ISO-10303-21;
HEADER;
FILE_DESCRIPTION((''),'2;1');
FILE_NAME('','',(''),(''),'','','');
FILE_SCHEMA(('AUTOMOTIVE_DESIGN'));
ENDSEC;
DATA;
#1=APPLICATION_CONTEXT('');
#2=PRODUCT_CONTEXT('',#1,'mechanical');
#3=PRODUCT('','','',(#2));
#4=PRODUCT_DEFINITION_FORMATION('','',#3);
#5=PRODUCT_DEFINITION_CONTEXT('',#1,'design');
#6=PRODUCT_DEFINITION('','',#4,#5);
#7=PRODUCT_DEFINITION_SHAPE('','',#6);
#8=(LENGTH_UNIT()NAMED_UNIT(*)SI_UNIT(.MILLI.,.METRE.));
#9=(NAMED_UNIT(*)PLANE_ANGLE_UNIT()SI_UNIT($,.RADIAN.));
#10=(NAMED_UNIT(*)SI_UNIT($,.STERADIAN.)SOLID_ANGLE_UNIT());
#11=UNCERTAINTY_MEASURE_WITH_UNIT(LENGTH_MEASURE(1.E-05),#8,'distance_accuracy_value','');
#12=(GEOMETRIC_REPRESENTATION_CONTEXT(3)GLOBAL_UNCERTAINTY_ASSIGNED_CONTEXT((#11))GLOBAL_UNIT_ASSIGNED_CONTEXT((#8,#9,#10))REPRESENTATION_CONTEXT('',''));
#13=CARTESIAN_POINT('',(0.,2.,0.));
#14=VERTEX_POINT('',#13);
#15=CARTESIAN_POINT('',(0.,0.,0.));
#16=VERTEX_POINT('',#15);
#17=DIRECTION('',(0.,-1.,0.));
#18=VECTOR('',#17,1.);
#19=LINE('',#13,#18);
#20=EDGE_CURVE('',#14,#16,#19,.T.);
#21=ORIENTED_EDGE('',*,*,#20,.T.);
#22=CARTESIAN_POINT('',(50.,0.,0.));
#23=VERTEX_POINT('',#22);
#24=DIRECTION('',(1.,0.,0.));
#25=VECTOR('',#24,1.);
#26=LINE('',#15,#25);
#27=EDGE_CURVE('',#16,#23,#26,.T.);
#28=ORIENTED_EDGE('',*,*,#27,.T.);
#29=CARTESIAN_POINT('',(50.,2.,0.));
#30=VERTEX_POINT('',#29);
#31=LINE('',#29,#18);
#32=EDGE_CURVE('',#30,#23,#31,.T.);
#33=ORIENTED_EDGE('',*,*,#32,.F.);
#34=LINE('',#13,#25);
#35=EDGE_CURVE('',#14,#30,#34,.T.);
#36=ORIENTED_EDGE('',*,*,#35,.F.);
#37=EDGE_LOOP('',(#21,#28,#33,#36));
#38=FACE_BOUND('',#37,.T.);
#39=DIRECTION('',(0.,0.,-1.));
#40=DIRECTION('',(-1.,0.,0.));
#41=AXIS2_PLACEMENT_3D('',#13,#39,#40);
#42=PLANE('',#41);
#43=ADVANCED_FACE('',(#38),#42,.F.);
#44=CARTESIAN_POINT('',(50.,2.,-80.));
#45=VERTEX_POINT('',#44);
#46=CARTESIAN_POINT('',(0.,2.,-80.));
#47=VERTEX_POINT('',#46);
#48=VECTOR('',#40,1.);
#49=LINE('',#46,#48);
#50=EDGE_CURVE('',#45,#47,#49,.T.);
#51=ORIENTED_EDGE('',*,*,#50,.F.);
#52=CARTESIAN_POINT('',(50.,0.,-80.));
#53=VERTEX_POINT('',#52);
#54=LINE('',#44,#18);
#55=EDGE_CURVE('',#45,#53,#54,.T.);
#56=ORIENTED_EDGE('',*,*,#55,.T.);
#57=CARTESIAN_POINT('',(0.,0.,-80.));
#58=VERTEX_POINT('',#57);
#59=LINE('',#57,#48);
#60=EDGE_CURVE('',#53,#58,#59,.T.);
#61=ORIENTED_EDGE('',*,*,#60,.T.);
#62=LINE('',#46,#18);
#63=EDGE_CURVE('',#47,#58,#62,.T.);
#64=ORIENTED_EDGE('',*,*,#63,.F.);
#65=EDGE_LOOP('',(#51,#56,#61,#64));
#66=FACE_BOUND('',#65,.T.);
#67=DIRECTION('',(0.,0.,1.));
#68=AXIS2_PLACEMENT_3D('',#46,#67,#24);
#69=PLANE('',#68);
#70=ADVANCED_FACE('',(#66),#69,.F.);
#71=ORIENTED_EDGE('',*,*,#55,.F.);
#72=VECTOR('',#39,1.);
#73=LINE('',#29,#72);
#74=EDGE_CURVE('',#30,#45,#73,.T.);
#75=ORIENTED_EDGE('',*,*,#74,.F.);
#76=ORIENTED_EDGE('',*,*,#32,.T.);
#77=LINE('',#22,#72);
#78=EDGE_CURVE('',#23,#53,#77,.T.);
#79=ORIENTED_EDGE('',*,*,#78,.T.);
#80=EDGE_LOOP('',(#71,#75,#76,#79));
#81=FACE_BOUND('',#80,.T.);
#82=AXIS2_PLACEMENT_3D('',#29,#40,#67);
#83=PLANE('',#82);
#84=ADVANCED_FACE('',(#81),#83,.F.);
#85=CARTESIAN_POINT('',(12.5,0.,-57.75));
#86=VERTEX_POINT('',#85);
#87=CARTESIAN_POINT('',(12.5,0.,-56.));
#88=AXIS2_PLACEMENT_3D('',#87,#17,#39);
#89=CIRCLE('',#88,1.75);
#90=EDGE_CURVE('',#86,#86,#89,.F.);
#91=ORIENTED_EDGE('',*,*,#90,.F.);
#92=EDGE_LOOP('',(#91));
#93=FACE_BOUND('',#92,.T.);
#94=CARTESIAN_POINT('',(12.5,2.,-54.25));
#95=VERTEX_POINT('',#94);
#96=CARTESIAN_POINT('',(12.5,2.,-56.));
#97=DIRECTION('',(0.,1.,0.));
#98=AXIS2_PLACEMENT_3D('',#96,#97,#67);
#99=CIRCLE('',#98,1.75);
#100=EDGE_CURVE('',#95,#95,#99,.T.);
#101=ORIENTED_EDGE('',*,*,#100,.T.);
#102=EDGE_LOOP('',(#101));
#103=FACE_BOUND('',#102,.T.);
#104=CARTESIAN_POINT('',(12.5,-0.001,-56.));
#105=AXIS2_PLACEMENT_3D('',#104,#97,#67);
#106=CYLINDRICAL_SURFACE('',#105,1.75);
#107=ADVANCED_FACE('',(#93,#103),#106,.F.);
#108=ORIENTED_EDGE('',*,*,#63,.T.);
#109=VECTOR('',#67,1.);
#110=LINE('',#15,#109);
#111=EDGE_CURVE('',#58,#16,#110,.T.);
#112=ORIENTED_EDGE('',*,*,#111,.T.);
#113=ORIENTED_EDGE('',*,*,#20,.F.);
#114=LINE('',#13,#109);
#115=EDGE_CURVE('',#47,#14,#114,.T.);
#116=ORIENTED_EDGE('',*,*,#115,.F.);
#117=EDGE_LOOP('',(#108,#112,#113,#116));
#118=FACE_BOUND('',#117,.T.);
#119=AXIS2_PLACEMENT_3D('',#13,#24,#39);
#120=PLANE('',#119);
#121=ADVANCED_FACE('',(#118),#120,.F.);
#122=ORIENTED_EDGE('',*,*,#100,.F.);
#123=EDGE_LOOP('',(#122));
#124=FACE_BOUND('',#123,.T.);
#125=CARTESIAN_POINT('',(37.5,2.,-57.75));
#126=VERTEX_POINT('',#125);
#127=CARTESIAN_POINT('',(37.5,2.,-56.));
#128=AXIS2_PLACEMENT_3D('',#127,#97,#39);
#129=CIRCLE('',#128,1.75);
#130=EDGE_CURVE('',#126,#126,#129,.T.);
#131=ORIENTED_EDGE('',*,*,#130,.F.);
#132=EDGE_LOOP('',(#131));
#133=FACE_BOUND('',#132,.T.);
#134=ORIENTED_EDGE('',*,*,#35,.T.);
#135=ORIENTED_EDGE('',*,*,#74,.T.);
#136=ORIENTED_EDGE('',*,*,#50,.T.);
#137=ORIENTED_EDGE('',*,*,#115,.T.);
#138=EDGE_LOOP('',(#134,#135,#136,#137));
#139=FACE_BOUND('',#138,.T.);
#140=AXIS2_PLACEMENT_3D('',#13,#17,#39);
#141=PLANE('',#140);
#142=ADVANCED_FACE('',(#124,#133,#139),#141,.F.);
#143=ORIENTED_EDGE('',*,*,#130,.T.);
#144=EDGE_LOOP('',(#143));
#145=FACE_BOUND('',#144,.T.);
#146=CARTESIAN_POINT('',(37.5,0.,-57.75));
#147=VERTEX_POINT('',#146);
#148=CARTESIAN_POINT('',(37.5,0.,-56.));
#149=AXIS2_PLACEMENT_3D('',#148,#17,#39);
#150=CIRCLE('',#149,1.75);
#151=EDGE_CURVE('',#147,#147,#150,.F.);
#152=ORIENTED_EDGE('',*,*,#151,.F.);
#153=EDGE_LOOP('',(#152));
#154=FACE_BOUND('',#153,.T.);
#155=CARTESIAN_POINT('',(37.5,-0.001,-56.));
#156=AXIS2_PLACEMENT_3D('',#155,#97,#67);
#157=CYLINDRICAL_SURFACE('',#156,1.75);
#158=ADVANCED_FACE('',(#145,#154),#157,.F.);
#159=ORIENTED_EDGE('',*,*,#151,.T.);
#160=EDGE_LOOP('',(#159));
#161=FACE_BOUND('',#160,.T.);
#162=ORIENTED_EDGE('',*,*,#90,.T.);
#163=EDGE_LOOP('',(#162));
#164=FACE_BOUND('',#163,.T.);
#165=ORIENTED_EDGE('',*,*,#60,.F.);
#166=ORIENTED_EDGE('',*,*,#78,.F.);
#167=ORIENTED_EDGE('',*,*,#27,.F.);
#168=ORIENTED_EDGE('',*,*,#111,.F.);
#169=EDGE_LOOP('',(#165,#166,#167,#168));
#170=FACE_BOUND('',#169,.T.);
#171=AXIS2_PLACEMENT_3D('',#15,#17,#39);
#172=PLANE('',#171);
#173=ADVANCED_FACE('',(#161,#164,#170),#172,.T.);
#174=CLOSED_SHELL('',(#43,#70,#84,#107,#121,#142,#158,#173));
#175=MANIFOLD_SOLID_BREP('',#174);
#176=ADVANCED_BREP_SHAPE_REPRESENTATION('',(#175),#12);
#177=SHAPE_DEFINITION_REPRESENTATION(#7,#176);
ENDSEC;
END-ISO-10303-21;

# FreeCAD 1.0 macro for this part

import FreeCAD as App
import Part
import Sketcher
Q = App.Units.Quantity

doc = App.newDocument("Part")
body = doc.addObject("PartDesign::Body", "Body")

sketch1 = body.newObject("Sketcher::SketchObject", "Sketch")
sketch1.AttachmentSupport = (doc.getObject("XZ_Plane"), [""])
sketch1.MapMode = "FlatFace"
sketch1.addGeometry(Part.LineSegment(App.Vector(0, -80, 0), App.Vector(0, 0, 0)), False)
sketch1.addGeometry(Part.LineSegment(App.Vector(0, 0, 0), App.Vector(50, 0, 0)), False)
sketch1.addGeometry(Part.LineSegment(App.Vector(50, 0, 0), App.Vector(50, -80, 0)), False)
sketch1.addGeometry(Part.LineSegment(App.Vector(50, -80, 0), App.Vector(0, -80, 0)), False)
sketch1.addConstraint(Sketcher.Constraint("Coincident", 0, 2, 1, 1))
sketch1.addConstraint(Sketcher.Constraint("Coincident", 1, 2, 2, 1))
sketch1.addConstraint(Sketcher.Constraint("Coincident", 2, 2, 3, 1))
sketch1.addConstraint(Sketcher.Constraint("Coincident", 3, 2, 0, 1))
sketch1.addConstraint(Sketcher.Constraint("Vertical", 0))
sketch1.addConstraint(Sketcher.Constraint("Horizontal", 1))
sketch1.addConstraint(Sketcher.Constraint("Vertical", 2))
sketch1.addConstraint(Sketcher.Constraint("Horizontal", 3))
sketch1.addConstraint(Sketcher.Constraint("Coincident", 0, 2, -1, 1))
sketch1.addConstraint(Sketcher.Constraint("DistanceX", 1, 1, 1, 2, Q("50 mm")))
sketch1.addConstraint(Sketcher.Constraint("DistanceY", 0, 1, 0, 2, Q("80 mm")))
pad1 = body.newObject("PartDesign::Pad", "Pad")
pad1.Profile = sketch1
pad1.Length = 2
pad1.Reversed = True

sketch2 = body.newObject("Sketcher::SketchObject", "Sketch001")
sketch2.AttachmentSupport = (doc.getObject("XZ_Plane"), [""])
sketch2.MapMode = "FlatFace"
sketch2.AttachmentOffset = App.Placement(App.Vector(0, 0, -2), App.Rotation())
sketch2.addGeometry(Part.Circle(App.Vector(12.5, -56, 0), App.Vector(0, 0, 1), 1.8), False)
sketch2.addConstraint(Sketcher.Constraint("Diameter", 0, Q("3.5 mm")))
sketch2.addConstraint(Sketcher.Constraint("DistanceY", 0, 3, -1, 1, Q("56 mm")))
sketch2.addConstraint(Sketcher.Constraint("DistanceX", -1, 1, 0, 3, Q("12.5 mm")))
pocket1 = body.newObject("PartDesign::Pocket", "Pocket")
pocket1.Profile = sketch2
pocket1.Type = "UpToFirst"
pocket1.Reversed = True

sketch3 = body.newObject("Sketcher::SketchObject", "Sketch002")
sketch3.AttachmentSupport = (doc.getObject("XZ_Plane"), [""])
sketch3.MapMode = "FlatFace"
sketch3.AttachmentOffset = App.Placement(App.Vector(0, 0, -2), App.Rotation())
sketch3.addGeometry(Part.Circle(App.Vector(37.5, -56, 0), App.Vector(0, 0, 1), 1.8), False)
sketch3.addConstraint(Sketcher.Constraint("Diameter", 0, Q("3.5 mm")))
sketch3.addConstraint(Sketcher.Constraint("DistanceY", 0, 3, -1, 1, Q("56 mm")))
sketch3.addConstraint(Sketcher.Constraint("DistanceX", -1, 1, 0, 3, Q("37.5 mm")))
pocket2 = body.newObject("PartDesign::Pocket", "Pocket001")
pocket2.Profile = sketch3
pocket2.Type = "UpToFirst"
pocket2.Reversed = True

doc.recompute()
